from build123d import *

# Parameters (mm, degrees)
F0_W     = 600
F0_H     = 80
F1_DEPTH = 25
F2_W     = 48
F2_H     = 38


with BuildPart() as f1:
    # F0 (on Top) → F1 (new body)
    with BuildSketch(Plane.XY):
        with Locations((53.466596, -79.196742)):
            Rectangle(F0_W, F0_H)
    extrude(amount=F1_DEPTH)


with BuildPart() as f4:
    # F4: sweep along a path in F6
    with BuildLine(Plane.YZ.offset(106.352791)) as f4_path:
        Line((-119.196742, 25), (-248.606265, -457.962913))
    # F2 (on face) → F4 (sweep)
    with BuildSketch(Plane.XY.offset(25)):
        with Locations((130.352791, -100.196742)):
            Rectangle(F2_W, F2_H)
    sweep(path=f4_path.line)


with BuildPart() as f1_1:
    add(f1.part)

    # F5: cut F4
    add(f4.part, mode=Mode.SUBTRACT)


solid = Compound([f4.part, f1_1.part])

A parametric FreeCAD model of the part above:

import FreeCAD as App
import Part
import Sketcher

V = App.Vector

doc = App.newDocument("Part")
params = doc.addObject("Spreadsheet::Sheet", "Params")
for row, (alias, value) in enumerate([
    ("sketch1_width", "600 mm"),
    ("sketch1_height", "80 mm"),
    ("pad1_length", "25 mm"),
    ("sketch2_width", "48 mm"),
    ("sketch2_height", "38 mm"),
    ("sketch3_width", "500 mm"),
], start=1):
    params.set(f"A{row}", alias)
    params.set(f"B{row}", "=" + value)
    params.setAlias(f"B{row}", alias)

body = doc.addObject("PartDesign::Body", "Body")

# Sketch on XY plane
sketch1 = doc.addObject("Sketcher::SketchObject", "Sketch")
body.addObject(sketch1)
sketch1.AttachmentSupport = (doc.XY_Plane, [""])
sketch1.MapMode = "FlatFace"
sketch1.addGeometry([
    Part.LineSegment(V(-247, -39, 0), V(-247, -119, 0)),
    Part.LineSegment(V(-247, -119, 0), V(353, -119, 0)),
    Part.LineSegment(V(353, -119, 0), V(353, -39, 0)),
    Part.LineSegment(V(353, -39, 0), V(-247, -39, 0)),
], False)
sketch1.addConstraint([
    Sketcher.Constraint("Coincident", 0, 2, 1, 1),
    Sketcher.Constraint("Coincident", 1, 2, 2, 1),
    Sketcher.Constraint("Coincident", 2, 2, 3, 1),
    Sketcher.Constraint("Coincident", 3, 2, 0, 1),
    Sketcher.Constraint("Vertical", 0),
    Sketcher.Constraint("Horizontal", 1),
    Sketcher.Constraint("Vertical", 2),
    Sketcher.Constraint("Horizontal", 3),
    Sketcher.Constraint("DistanceX", 1, 1, 1, 2, 600.0),
    Sketcher.Constraint("DistanceY", 0, 2, 0, 1, 80.0),
    Sketcher.Constraint("DistanceY", 0, 2, -1, 1, 119.196742),
    Sketcher.Constraint("DistanceX", 0, 2, -1, 1, 246.533404),
])
sketch1.setExpression("Constraints[8]", "Params.sketch1_width")
sketch1.setExpression("Constraints[9]", "Params.sketch1_height")
pad1 = doc.addObject("PartDesign::Pad", "Pad")
body.addObject(pad1)
pad1.Profile = sketch1
pad1.setExpression("Length", "Params.pad1_length")
body2 = doc.addObject("PartDesign::Body", "Body001")

# Sketch on XY plane
sketch2 = doc.addObject("Sketcher::SketchObject", "Sketch001")
body2.addObject(sketch2)
sketch2.AttachmentSupport = (doc.getObject("XY_Plane001"), [""])
sketch2.MapMode = "FlatFace"
sketch2.AttachmentOffset = App.Placement(V(0, 0, 25), App.Rotation())
sketch2.addGeometry([
    Part.LineSegment(V(106, -81, 0), V(106, -119, 0)),
    Part.LineSegment(V(106, -119, 0), V(154, -119, 0)),
    Part.LineSegment(V(154, -119, 0), V(154, -81, 0)),
    Part.LineSegment(V(154, -81, 0), V(106, -81, 0)),
], False)
sketch2.addConstraint([
    Sketcher.Constraint("Coincident", 0, 2, 1, 1),
    Sketcher.Constraint("Coincident", 1, 2, 2, 1),
    Sketcher.Constraint("Coincident", 2, 2, 3, 1),
    Sketcher.Constraint("Coincident", 3, 2, 0, 1),
    Sketcher.Constraint("Vertical", 0),
    Sketcher.Constraint("Horizontal", 1),
    Sketcher.Constraint("Vertical", 2),
    Sketcher.Constraint("Horizontal", 3),
    Sketcher.Constraint("DistanceX", 1, 1, 1, 2, 48.0),
    Sketcher.Constraint("DistanceY", 0, 2, 0, 1, 38.0),
    Sketcher.Constraint("DistanceX", -1, 1, 0, 2, 106.352791),
    Sketcher.Constraint("DistanceY", 0, 2, -1, 1, 119.196742),
])
sketch2.setExpression("Constraints[8]", "Params.sketch2_width")
sketch2.setExpression("Constraints[9]", "Params.sketch2_height")

# Sketch on an angled plane
sketch3 = doc.addObject("Sketcher::SketchObject", "Sketch002")
body2.addObject(sketch3)
sketch3.Placement = App.Placement(V(0, -117.462074, 31.473868), App.Rotation(V(0, 0.258819046, 0.965925826), V(1, 0, 0), V(0, 0.965925826, -0.258819046), "ZXY"))
sketch3.addGeometry(Part.LineSegment(V(-7, 106, 0), V(-507, 106, 0)), False)
sketch3.addConstraint([
    Sketcher.Constraint("Horizontal", 0),
    Sketcher.Constraint("DistanceX", 0, 2, 0, 1, 500.0),
    Sketcher.Constraint("DistanceX", 0, 1, -1, 1, 6.702241),
    Sketcher.Constraint("DistanceY", -1, 1, 0, 1, 106.352791),
])
sketch3.setExpression("Constraints[1]", "Params.sketch3_width")
doc.recompute()

additivepipe = doc.addObject("PartDesign::AdditivePipe", "AdditivePipe")
body2.addObject(additivepipe)
additivepipe.Profile = sketch2
additivepipe.Spine = (sketch3, ["Edge1"])
doc.recompute()

body3 = doc.addObject("PartDesign::Body", "Body002")
body3.BaseFeature = body2
boolean = doc.addObject("PartDesign::Boolean", "Boolean")
body.addObject(boolean)
boolean.Type = "Cut"
boolean.addObjects([body3])
doc.recompute()

doc.recompute()
